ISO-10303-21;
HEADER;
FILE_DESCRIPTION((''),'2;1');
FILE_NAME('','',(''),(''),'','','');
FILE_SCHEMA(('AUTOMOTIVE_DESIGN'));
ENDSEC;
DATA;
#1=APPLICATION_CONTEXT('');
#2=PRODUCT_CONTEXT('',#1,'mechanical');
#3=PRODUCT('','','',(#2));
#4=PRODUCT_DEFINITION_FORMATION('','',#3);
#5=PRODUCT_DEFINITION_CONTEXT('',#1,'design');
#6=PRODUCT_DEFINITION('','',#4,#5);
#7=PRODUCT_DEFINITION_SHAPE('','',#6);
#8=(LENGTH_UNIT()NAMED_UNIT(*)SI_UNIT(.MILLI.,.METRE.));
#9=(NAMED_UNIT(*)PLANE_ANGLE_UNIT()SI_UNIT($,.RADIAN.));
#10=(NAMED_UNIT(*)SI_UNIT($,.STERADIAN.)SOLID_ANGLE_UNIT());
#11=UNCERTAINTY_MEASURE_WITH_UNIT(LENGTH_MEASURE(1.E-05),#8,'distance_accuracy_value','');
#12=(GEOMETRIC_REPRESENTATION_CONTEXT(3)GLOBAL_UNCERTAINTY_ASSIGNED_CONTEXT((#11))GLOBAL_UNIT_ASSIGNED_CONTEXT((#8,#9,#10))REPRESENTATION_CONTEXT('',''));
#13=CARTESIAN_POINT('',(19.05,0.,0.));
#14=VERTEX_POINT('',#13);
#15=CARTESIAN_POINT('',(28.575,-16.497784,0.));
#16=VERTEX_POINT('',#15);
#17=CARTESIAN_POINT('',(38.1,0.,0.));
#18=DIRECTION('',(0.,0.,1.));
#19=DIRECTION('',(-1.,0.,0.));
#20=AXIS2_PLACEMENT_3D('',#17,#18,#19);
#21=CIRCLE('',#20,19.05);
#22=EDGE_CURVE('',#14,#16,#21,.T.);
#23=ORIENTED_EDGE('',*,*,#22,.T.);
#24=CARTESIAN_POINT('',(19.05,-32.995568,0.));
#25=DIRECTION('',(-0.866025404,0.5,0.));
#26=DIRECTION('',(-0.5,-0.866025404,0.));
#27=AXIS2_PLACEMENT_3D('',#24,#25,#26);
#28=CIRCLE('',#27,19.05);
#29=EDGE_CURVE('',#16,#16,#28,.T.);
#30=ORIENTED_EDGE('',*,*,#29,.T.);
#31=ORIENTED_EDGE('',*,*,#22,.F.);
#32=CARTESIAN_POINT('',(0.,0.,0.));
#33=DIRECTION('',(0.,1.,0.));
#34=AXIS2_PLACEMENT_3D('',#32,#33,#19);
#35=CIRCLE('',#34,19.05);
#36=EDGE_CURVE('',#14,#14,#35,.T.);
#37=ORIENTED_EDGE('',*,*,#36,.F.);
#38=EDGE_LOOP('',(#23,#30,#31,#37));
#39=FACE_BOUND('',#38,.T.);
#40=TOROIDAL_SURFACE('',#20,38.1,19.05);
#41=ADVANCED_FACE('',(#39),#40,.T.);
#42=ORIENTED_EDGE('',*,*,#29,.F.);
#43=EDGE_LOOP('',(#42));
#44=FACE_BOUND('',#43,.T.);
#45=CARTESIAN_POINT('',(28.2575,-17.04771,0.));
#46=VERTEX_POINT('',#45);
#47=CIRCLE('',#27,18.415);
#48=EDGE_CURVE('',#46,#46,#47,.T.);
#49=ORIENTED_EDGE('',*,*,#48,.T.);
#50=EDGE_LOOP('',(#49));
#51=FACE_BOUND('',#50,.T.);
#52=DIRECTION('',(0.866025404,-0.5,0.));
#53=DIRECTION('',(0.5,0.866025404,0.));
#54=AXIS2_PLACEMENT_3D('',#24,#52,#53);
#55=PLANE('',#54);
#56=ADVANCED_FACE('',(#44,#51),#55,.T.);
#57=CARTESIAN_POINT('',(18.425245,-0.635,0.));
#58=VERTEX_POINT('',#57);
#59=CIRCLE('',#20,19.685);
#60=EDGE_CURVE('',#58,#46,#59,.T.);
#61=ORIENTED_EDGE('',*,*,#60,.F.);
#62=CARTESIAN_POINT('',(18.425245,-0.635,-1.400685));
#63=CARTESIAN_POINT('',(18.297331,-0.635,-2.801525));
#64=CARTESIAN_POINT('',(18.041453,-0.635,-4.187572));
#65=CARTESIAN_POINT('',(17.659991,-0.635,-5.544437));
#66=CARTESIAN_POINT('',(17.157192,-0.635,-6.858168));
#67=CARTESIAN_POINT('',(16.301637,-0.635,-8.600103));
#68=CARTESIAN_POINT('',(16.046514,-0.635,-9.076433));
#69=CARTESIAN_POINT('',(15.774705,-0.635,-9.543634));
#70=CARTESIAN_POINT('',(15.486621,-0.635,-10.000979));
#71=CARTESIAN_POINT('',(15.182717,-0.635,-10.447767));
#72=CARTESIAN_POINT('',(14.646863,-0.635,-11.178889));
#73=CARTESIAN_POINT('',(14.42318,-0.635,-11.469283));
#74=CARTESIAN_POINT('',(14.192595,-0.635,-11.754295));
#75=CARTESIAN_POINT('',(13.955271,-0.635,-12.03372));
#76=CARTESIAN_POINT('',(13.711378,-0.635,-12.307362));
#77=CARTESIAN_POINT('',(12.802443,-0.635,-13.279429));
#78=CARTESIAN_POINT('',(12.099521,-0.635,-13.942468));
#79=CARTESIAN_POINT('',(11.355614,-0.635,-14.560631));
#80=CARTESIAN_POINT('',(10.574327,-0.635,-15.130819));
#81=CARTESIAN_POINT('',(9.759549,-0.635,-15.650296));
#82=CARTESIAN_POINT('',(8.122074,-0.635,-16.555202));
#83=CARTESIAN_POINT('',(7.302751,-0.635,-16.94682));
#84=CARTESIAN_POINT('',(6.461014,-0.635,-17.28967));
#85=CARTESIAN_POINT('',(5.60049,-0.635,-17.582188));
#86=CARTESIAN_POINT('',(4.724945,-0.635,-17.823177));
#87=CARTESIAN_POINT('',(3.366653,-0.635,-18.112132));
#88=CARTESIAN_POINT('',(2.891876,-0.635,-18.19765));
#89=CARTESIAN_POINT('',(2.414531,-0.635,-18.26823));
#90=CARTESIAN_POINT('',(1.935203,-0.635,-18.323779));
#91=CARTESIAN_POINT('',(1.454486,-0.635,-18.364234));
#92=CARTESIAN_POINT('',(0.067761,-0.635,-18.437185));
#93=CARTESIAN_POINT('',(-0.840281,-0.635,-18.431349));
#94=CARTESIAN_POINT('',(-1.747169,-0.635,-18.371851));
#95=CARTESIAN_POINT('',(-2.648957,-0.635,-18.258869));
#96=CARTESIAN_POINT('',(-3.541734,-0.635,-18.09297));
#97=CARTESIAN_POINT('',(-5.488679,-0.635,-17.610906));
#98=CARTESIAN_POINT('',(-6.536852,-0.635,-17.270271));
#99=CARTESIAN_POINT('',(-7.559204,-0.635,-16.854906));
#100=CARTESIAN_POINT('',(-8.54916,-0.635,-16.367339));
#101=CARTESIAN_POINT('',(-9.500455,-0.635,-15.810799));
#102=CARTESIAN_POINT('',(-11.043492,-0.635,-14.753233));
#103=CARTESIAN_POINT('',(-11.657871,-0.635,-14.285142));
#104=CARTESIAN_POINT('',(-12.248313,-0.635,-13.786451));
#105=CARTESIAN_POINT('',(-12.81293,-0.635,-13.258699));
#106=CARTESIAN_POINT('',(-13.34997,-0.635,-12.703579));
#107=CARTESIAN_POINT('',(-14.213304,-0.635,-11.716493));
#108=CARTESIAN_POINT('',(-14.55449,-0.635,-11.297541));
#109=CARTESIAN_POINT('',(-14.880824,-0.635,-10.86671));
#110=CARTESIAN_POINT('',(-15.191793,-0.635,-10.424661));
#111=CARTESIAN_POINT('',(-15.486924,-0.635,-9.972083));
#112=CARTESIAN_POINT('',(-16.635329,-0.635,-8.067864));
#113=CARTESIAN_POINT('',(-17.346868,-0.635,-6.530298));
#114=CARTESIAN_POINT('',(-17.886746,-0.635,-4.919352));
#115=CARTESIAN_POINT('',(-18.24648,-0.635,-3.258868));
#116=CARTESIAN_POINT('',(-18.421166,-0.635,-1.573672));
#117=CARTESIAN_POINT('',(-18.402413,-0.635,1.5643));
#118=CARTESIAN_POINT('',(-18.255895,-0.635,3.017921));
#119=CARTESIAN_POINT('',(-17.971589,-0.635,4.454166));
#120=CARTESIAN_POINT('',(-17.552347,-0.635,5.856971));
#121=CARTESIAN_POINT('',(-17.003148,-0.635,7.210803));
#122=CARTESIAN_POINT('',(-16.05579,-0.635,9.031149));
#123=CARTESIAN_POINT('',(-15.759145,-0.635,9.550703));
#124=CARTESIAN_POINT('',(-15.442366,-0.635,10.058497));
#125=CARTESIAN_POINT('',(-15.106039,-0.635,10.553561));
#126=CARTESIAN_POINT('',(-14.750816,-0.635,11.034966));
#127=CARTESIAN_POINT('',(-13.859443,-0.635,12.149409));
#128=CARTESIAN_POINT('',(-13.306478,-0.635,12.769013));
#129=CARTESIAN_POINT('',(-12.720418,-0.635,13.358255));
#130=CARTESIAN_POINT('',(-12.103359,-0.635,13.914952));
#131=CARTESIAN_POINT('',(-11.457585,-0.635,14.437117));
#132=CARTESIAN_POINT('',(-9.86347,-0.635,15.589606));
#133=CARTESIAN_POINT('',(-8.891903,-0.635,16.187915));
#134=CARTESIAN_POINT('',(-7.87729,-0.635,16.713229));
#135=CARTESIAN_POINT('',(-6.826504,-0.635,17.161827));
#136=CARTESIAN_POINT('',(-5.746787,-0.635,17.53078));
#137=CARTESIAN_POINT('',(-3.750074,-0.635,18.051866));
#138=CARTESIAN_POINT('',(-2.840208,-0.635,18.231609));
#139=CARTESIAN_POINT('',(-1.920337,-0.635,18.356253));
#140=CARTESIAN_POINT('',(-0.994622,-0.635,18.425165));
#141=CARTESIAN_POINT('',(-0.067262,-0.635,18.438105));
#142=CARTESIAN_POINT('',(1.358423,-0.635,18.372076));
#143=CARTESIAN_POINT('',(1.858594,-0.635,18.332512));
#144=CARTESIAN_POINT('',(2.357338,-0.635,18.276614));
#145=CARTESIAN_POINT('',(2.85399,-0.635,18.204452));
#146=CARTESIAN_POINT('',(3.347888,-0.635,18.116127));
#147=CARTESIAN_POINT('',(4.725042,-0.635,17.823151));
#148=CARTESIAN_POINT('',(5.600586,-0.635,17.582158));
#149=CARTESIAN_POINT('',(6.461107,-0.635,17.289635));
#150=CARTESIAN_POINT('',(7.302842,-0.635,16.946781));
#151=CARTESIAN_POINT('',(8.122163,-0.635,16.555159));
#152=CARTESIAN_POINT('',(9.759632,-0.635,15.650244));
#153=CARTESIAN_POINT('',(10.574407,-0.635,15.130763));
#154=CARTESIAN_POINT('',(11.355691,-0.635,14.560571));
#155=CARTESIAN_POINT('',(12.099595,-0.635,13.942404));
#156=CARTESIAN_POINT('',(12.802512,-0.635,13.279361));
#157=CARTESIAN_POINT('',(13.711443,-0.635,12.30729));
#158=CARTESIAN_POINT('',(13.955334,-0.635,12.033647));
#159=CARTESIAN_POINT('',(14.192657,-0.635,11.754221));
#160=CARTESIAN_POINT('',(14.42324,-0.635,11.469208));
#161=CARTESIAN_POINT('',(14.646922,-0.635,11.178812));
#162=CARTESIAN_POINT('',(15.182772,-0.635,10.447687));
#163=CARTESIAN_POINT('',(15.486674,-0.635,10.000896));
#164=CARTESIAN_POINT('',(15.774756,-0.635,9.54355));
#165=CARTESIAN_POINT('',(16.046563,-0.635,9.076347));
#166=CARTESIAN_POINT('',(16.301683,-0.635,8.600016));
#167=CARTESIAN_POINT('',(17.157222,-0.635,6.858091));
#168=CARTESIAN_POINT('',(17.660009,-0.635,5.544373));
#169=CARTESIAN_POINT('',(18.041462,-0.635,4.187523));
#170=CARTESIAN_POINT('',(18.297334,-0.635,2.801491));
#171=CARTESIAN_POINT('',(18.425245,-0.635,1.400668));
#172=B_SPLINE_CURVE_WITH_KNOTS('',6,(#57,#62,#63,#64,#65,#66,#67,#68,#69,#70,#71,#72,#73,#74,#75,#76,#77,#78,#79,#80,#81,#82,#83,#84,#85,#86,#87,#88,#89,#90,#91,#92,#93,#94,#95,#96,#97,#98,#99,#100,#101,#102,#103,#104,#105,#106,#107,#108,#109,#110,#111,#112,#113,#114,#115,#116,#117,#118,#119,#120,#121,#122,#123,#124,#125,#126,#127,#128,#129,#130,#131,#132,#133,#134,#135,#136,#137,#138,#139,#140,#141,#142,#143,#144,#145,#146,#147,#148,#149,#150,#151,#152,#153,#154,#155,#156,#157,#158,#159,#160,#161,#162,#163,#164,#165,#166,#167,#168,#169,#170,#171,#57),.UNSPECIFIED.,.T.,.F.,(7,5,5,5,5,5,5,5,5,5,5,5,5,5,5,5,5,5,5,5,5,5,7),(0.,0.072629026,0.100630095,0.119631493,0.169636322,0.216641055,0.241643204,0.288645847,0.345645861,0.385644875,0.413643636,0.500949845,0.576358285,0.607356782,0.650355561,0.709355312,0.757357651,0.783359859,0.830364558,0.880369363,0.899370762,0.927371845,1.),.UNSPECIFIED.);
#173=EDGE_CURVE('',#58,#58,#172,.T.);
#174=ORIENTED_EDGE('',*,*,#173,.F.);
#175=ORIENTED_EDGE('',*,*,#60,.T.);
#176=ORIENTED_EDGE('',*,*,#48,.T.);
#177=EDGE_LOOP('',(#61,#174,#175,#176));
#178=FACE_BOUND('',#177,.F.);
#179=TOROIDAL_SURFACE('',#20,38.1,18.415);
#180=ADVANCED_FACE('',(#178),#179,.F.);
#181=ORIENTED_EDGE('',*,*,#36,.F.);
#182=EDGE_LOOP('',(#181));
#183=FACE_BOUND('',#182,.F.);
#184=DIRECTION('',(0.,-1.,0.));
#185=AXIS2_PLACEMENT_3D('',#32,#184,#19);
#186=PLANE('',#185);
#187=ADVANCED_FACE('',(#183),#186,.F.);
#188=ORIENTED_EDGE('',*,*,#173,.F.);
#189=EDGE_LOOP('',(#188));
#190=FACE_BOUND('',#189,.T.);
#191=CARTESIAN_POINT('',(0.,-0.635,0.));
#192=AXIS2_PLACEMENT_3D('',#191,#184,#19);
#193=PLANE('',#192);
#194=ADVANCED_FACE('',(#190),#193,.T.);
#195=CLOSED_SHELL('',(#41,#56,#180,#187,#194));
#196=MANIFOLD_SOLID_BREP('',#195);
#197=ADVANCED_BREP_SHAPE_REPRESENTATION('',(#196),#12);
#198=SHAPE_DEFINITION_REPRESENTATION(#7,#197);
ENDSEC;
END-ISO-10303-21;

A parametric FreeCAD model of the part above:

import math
import FreeCAD as App
import Part
import Sketcher
Q = App.Units.Quantity


def faces_at(feature, points):
    """Names of the faces that lie closest to the given points."""
    faces = feature.Shape.Faces
    near = lambda p: min(range(len(faces)), key=lambda i: faces[i].distToShape(Part.Vertex(*p))[0])
    return sorted({f"Face{near(p) + 1}" for p in points})

doc = App.newDocument("Part")
body = doc.addObject("PartDesign::Body", "Body")

# Sketch on XZ plane
sketch1 = doc.addObject("Sketcher::SketchObject", "Sketch")
body.addObject(sketch1)
sketch1.AttachmentSupport = (doc.XZ_Plane, [""])
sketch1.MapMode = "FlatFace"
sketch1.addGeometry(Part.Circle(App.Vector(0, 0, 0), App.Vector(0, 0, 1), 19), False)
sketch1.addConstraint([
    Sketcher.Constraint("Coincident", 0, 3, -1, 1),
    Sketcher.Constraint("Diameter", 0, Q("1.5 in")),
])

# Sketch on XY plane
sketch2 = doc.addObject("Sketcher::SketchObject", "Sketch001")
body.addObject(sketch2)
sketch2.AttachmentSupport = (doc.XY_Plane, [""])
sketch2.MapMode = "FlatFace"
sketch2.addGeometry(Part.ArcOfCircle(Part.Circle(App.Vector(38, 0, 0), App.Vector(0, 0, 1), 38), math.radians(180), math.radians(240)), False)
sketch2.addConstraint([
    Sketcher.Constraint("Coincident", 0, 1, -1, 1),
    Sketcher.Constraint("PointOnObject", 0, 3, -1),
    Sketcher.Constraint("Radius", 0, Q("1.5 in")),
    Sketcher.Constraint("DistanceX", -1, 1, 0, 2, Q("0.75 in")),
])
doc.recompute()

additivepipe = doc.addObject("PartDesign::AdditivePipe", "AdditivePipe")
body.addObject(additivepipe)
additivepipe.Profile = sketch1
additivepipe.Spine = (sketch2, ["Edge1"])
doc.recompute()

thickness = doc.addObject("PartDesign::Thickness", "Thickness")
body.addObject(thickness)
thickness.Base = (additivepipe, faces_at(additivepipe, [(19.05, -32.996, 0)]))
thickness.Value = Q("0.025 in")
thickness.Reversed = True
thickness.Join = "Arc"

doc.recompute()
